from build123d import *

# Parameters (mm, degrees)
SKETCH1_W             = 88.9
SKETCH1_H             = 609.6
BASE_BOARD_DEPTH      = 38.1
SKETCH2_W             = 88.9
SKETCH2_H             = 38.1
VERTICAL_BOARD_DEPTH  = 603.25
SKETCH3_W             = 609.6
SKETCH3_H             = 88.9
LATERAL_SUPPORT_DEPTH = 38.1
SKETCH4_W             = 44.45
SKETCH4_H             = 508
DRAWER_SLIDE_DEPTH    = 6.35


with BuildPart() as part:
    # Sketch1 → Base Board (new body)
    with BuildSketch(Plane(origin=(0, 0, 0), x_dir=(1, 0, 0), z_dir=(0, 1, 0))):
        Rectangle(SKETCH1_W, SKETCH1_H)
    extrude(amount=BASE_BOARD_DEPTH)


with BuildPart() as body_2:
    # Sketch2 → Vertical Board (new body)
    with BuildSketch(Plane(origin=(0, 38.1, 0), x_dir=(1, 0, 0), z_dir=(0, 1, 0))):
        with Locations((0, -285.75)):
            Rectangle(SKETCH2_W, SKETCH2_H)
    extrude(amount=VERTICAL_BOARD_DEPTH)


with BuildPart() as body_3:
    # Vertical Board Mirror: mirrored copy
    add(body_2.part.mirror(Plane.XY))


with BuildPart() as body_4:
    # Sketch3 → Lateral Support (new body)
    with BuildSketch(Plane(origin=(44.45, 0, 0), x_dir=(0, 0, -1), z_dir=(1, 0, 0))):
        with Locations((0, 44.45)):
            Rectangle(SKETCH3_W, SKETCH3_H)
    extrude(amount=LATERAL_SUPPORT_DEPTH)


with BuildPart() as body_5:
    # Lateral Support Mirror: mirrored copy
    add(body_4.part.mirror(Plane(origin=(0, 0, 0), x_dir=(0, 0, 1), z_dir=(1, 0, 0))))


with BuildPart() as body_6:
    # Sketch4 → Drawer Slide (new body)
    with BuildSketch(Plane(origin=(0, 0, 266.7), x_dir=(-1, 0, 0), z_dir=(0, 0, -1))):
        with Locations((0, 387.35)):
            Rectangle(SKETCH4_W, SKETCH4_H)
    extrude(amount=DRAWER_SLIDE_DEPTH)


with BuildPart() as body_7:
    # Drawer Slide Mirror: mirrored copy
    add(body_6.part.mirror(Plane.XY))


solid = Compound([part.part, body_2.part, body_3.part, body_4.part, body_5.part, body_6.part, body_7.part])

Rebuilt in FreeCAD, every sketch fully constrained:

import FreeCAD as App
import Part
import Sketcher
from FreeCAD import Vector
Q = App.Units.Quantity


def add_polygon(sketch, points):
    """Adds a closed chain of lines whose ends are joined by coincident constraints."""
    first, n = sketch.GeometryCount, len(points)
    for a, b in zip(points, points[1:] + points[:1]):
        sketch.addGeometry(Part.LineSegment(App.Vector(*a, 0), App.Vector(*b, 0)), False)
    for i in range(n):
        sketch.addConstraint(Sketcher.Constraint("Coincident", first + i, 2, first + (i + 1) % n, 1))

doc = App.newDocument("Part")
params = doc.addObject("Spreadsheet::Sheet", "Params")
for row, (alias, value) in enumerate([
    ("sketch1_height", "24 in"),
    ("sketch1_width", "3.5 in"),
    ("pad1_length", "1.5 in"),
    ("sketch2_width", "3.5 in"),
    ("sketch2_height", "1.5 in"),
    ("pad2_length", "23.75 in"),
    ("sketch3_height", "24 in"),
    ("sketch3_width", "3.5 in"),
    ("pad3_length", "1.5 in"),
    ("sketch4_height", "20 in"),
    ("sketch4_width", "1.75 in"),
    ("pad4_length", "0.25 in"),
], start=1):
    params.set(f"A{row}", alias)
    params.set(f"B{row}", "=" + value)
    params.setAlias(f"B{row}", alias)

body = doc.addObject("PartDesign::Body", "Body")

# Sketch on XZ plane
sketch1 = doc.addObject("Sketcher::SketchObject", "Sketch")
body.addObject(sketch1)
sketch1.AttachmentSupport = (doc.XZ_Plane, [""])
sketch1.MapMode = "FlatFace"
add_polygon(sketch1, [(-44.45, -304.8), (-44.45, 304.8), (44.45, 304.8), (44.45, -304.8)])  # lines 0-3
sketch1.addConstraint(Sketcher.Constraint("Vertical", 0))
sketch1.addConstraint(Sketcher.Constraint("Horizontal", 1))
sketch1.addConstraint(Sketcher.Constraint("Vertical", 2))
sketch1.addConstraint(Sketcher.Constraint("Horizontal", 3))
sketch1.addConstraint(Sketcher.Constraint("Symmetric", 0, 2, 2, 2, -1, 1))
sketch1.addConstraint(Sketcher.Constraint("DistanceY", 0, 1, 0, 2, Q("24 in")))
sketch1.addConstraint(Sketcher.Constraint("DistanceX", 1, 1, 1, 2, Q("3.5 in")))
sketch1.setExpression("Constraints[9]", "Params.sketch1_height")
sketch1.setExpression("Constraints[10]", "Params.sketch1_width")
pad1 = doc.addObject("PartDesign::Pad", "Pad")
body.addObject(pad1)
pad1.Profile = sketch1
pad1.setExpression("Length", "Params.pad1_length")
pad1.Reversed = True
body2 = doc.addObject("PartDesign::Body", "Body001")

# Sketch on XZ plane
sketch2 = doc.addObject("Sketcher::SketchObject", "Sketch001")
body2.addObject(sketch2)
sketch2.AttachmentSupport = (doc.getObject("XZ_Plane001"), [""])
sketch2.MapMode = "FlatFace"
sketch2.AttachmentOffset = App.Placement(Vector(0, 0, -1.5 * 25.4), App.Rotation())
add_polygon(sketch2, [(-44.45, 266.7), (-44.45, 304.8), (44.45, 304.8), (44.45, 266.7)])  # lines 0-3
sketch2.addConstraint(Sketcher.Constraint("Vertical", 0))
sketch2.addConstraint(Sketcher.Constraint("Horizontal", 1))
sketch2.addConstraint(Sketcher.Constraint("Vertical", 2))
sketch2.addConstraint(Sketcher.Constraint("Horizontal", 3))
sketch2.addConstraint(Sketcher.Constraint("DistanceX", 1, 1, 1, 2, Q("3.5 in")))
sketch2.addConstraint(Sketcher.Constraint("DistanceY", 0, 1, 0, 2, Q("1.5 in")))
sketch2.addConstraint(Sketcher.Constraint("DistanceY", -1, 1, 0, 2, Q("12 in")))
sketch2.addConstraint(Sketcher.Constraint("DistanceX", 0, 2, -1, 1, Q("1.75 in")))
sketch2.setExpression("Constraints[8]", "Params.sketch2_width")
sketch2.setExpression("Constraints[9]", "Params.sketch2_height")
pad2 = doc.addObject("PartDesign::Pad", "Pad001")
body2.addObject(pad2)
pad2.Profile = sketch2
pad2.setExpression("Length", "Params.pad2_length")
pad2.Reversed = True
body3 = doc.addObject("PartDesign::Body", "Body002")
doc.recompute()

mirroring = doc.addObject("Part::Mirroring", "Mirroring")
mirroring.Source = body2
mirroring.Base = Vector(0, 0, 0)
mirroring.Normal = Vector(0, 0, 1)
body3.BaseFeature = mirroring
doc.recompute()
body4 = doc.addObject("PartDesign::Body", "Body003")

# Sketch on YZ plane
sketch3 = doc.addObject("Sketcher::SketchObject", "Sketch002")
body4.addObject(sketch3)
sketch3.AttachmentSupport = (doc.getObject("YZ_Plane003"), [""])
sketch3.MapMode = "FlatFace"
sketch3.AttachmentOffset = App.Placement(Vector(0, 0, 1.75 * 25.4), App.Rotation())
add_polygon(sketch3, [(88.9, 304.8), (0, 304.8), (0, -304.8), (88.9, -304.8)])  # lines 0-3
sketch3.addConstraint(Sketcher.Constraint("Horizontal", 0))
sketch3.addConstraint(Sketcher.Constraint("Vertical", 1))
sketch3.addConstraint(Sketcher.Constraint("Horizontal", 2))
sketch3.addConstraint(Sketcher.Constraint("Vertical", 3))
sketch3.addConstraint(Sketcher.Constraint("Symmetric", 0, 2, 1, 2, -1, 1))
sketch3.addConstraint(Sketcher.Constraint("DistanceY", 1, 2, 1, 1, Q("24 in")))
sketch3.addConstraint(Sketcher.Constraint("DistanceX", 0, 2, 0, 1, Q("3.5 in")))
sketch3.setExpression("Constraints[9]", "Params.sketch3_height")
sketch3.setExpression("Constraints[10]", "Params.sketch3_width")
pad3 = doc.addObject("PartDesign::Pad", "Pad002")
body4.addObject(pad3)
pad3.Profile = sketch3
pad3.setExpression("Length", "Params.pad3_length")
body5 = doc.addObject("PartDesign::Body", "Body004")
doc.recompute()

mirroring2 = doc.addObject("Part::Mirroring", "Mirroring001")
mirroring2.Source = body4
mirroring2.Base = Vector(0, 0, 0)
mirroring2.Normal = Vector(1, 0, 0)
body5.BaseFeature = mirroring2
doc.recompute()
body6 = doc.addObject("PartDesign::Body", "Body005")

# Sketch on XY plane
sketch4 = doc.addObject("Sketcher::SketchObject", "Sketch003")
body6.addObject(sketch4)
sketch4.AttachmentSupport = (doc.getObject("XY_Plane005"), [""])
sketch4.MapMode = "FlatFace"
sketch4.AttachmentOffset = App.Placement(Vector(0, 0, 10.5 * 25.4), App.Rotation())
add_polygon(sketch4, [(22.225, 641.35), (22.225, 133.35), (-22.225, 133.35), (-22.225, 641.35)])  # lines 0-3
sketch4.addConstraint(Sketcher.Constraint("Vertical", 0))
sketch4.addConstraint(Sketcher.Constraint("Horizontal", 1))
sketch4.addConstraint(Sketcher.Constraint("Vertical", 2))
sketch4.addConstraint(Sketcher.Constraint("Horizontal", 3))
sketch4.addConstraint(Sketcher.Constraint("DistanceY", 0, 2, 0, 1, Q("20 in")))
sketch4.addConstraint(Sketcher.Constraint("DistanceX", 1, 2, 1, 1, Q("1.75 in")))
sketch4.addConstraint(Sketcher.Constraint("DistanceY", -1, 1, 0, 2, Q("5.25 in")))
sketch4.addConstraint(Sketcher.Constraint("DistanceX", -1, 1, 0, 2, Q("0.875 in")))
sketch4.setExpression("Constraints[8]", "Params.sketch4_height")
sketch4.setExpression("Constraints[9]", "Params.sketch4_width")
pad4 = doc.addObject("PartDesign::Pad", "Pad003")
body6.addObject(pad4)
pad4.Profile = sketch4
pad4.setExpression("Length", "Params.pad4_length")
pad4.Reversed = True
body7 = doc.addObject("PartDesign::Body", "Body006")
doc.recompute()

mirroring3 = doc.addObject("Part::Mirroring", "Mirroring002")
mirroring3.Source = body6
mirroring3.Base = Vector(0, 0, 0)
mirroring3.Normal = Vector(0, 0, 1)
body7.BaseFeature = mirroring3
doc.recompute()
mirroring.Visibility = False
mirroring2.Visibility = False
mirroring3.Visibility = False

doc.recompute()
